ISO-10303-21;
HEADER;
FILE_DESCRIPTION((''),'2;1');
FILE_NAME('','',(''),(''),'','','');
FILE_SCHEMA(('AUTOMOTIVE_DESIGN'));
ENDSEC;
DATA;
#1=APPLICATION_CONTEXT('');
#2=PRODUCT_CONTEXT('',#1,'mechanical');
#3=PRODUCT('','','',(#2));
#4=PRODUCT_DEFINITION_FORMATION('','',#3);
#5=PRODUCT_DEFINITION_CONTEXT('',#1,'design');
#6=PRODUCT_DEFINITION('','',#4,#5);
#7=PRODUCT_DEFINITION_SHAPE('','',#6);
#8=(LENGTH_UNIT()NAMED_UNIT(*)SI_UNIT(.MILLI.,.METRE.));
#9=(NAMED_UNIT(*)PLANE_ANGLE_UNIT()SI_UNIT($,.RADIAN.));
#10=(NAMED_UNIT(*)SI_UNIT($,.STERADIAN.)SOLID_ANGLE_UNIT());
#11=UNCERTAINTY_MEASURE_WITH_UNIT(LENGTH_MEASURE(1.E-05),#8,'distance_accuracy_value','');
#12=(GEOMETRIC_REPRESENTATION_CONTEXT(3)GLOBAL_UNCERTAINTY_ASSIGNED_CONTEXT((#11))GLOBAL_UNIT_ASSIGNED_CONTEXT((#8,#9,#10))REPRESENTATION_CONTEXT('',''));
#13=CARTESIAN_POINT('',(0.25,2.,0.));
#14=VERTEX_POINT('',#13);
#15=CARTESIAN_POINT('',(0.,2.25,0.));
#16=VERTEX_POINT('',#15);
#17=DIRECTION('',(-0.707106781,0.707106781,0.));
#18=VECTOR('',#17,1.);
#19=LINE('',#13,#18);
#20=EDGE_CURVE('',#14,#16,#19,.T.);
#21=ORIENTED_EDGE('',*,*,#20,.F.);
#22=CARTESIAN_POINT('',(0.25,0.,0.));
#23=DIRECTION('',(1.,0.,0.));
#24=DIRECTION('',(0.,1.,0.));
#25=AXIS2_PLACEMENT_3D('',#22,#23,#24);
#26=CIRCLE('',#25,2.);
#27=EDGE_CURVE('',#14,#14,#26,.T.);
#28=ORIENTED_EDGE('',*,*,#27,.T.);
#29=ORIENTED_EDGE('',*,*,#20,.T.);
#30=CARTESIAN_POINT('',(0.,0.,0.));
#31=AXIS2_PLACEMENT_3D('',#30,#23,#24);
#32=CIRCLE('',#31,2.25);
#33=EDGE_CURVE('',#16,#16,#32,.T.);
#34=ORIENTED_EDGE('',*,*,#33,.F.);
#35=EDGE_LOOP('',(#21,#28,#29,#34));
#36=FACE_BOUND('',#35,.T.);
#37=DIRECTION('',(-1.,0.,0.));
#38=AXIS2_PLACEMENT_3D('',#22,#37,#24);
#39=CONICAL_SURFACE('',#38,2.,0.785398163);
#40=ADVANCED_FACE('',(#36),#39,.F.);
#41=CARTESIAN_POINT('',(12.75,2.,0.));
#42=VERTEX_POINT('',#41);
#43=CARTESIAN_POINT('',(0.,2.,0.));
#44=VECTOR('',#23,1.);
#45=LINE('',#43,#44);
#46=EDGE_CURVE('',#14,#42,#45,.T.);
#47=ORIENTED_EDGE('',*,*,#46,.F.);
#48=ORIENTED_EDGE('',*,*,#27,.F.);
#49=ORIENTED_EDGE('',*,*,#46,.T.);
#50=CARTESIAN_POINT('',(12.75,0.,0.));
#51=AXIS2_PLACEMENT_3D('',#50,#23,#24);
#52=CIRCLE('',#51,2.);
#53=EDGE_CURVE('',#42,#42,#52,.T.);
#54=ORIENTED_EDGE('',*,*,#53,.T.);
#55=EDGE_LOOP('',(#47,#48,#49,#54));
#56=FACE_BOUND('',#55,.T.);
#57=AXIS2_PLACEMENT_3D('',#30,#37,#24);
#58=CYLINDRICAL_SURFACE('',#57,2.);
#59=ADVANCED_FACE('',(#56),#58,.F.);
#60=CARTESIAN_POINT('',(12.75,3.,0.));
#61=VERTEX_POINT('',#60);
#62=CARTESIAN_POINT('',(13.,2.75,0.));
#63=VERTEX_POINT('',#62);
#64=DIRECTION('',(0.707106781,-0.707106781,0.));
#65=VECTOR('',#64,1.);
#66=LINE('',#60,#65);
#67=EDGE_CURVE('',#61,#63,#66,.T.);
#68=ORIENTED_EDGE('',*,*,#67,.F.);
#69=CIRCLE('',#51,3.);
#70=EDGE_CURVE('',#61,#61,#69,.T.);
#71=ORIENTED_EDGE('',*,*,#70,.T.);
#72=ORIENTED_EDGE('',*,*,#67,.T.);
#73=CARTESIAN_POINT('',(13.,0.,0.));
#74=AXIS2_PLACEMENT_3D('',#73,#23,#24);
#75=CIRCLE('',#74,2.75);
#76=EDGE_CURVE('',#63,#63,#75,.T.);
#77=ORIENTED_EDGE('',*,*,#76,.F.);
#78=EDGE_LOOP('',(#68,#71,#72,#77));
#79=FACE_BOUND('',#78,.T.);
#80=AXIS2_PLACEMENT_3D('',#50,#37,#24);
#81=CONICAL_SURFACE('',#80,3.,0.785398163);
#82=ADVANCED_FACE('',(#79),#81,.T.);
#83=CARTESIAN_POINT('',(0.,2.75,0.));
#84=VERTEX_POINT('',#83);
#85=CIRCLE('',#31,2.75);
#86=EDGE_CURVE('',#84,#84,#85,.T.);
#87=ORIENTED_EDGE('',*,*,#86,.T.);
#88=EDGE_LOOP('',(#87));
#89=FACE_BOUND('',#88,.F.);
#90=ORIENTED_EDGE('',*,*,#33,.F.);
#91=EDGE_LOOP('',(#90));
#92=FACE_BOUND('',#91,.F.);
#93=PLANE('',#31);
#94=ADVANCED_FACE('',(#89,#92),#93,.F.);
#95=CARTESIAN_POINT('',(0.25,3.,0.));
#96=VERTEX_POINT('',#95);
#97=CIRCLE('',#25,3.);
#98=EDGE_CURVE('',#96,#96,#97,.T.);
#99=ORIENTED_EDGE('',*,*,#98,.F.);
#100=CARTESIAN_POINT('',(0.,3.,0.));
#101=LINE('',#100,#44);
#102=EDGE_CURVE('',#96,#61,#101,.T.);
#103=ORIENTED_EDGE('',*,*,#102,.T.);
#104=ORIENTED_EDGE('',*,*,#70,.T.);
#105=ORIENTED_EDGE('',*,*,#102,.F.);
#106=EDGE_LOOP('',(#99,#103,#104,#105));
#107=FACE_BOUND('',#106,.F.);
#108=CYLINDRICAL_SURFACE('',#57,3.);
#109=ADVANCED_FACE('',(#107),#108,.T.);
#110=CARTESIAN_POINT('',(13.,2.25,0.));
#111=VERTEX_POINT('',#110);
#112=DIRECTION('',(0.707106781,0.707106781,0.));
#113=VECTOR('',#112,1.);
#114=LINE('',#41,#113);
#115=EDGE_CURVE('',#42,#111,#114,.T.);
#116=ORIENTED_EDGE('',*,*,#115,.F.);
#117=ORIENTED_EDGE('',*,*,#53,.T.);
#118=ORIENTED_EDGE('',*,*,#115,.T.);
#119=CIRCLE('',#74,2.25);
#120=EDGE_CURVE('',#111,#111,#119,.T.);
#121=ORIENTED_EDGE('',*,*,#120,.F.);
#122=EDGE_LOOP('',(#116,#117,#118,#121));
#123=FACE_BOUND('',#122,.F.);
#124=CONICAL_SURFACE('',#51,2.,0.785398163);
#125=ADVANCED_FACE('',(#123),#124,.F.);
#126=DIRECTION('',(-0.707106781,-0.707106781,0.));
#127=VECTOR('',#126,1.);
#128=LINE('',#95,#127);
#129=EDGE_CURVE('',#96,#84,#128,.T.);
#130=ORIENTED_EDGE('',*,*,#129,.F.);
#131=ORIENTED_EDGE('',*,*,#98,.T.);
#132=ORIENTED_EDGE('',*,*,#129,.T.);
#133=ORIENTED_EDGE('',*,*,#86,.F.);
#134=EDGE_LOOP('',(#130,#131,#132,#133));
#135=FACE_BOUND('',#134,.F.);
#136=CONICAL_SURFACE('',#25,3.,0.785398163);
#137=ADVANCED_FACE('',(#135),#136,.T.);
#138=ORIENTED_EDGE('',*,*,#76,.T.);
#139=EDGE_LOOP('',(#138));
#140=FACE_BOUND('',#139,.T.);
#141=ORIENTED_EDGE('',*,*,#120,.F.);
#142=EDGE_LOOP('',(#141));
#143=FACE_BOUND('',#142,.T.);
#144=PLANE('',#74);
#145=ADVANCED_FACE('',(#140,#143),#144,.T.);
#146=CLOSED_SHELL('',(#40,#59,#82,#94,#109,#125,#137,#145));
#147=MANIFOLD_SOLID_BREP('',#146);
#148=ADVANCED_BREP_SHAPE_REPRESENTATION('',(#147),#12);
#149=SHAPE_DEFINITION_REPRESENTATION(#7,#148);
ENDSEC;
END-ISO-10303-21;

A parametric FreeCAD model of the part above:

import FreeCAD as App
import Part
import Sketcher
from FreeCAD import Vector


def edges_at(feature, points):
    """Names of the edges that pass closest to the given points."""
    edges = feature.Shape.Edges
    near = lambda p: min(range(len(edges)), key=lambda i: edges[i].distToShape(Part.Vertex(*p))[0])
    return sorted({f"Edge{near(p) + 1}" for p in points})

doc = App.newDocument("Part")
body = doc.addObject("PartDesign::Body", "Body")

# Sketch on YZ plane
sketch1 = doc.addObject("Sketcher::SketchObject", "Sketch")
body.addObject(sketch1)
sketch1.AttachmentSupport = (doc.YZ_Plane, [""])
sketch1.MapMode = "FlatFace"
sketch1.addGeometry(Part.Circle(Vector(0, 0, 0), Vector(0, 0, 1), 3), False)
sketch1.addGeometry(Part.Circle(Vector(0, 0, 0), Vector(0, 0, 1), 2), False)
sketch1.addConstraint(Sketcher.Constraint("Coincident", 0, 3, -1, 1))
sketch1.addConstraint(Sketcher.Constraint("Coincident", 1, 3, -1, 1))
sketch1.addConstraint(Sketcher.Constraint("Diameter", 0, 6.0))
sketch1.addConstraint(Sketcher.Constraint("Diameter", 1, 4.0))
pad1 = doc.addObject("PartDesign::Pad", "Pad")
body.addObject(pad1)
pad1.Profile = sketch1
pad1.Length = 13
doc.recompute()

chamfer = doc.addObject("PartDesign::Chamfer", "Chamfer")
body.addObject(chamfer)
chamfer.Base = (pad1, edges_at(pad1, [
    (13, -3, 0),
    (13, -2, 0),
    (0, -2, 0),
    (0, -3, 0),
]))
chamfer.Size = 0.25

doc.recompute()
